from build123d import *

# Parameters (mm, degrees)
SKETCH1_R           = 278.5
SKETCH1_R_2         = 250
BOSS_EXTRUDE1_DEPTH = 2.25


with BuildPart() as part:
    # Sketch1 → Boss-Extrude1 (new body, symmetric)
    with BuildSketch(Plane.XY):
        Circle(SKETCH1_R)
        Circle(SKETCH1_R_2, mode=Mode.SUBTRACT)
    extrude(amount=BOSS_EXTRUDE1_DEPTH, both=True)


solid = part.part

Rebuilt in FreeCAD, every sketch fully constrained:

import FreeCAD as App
import Part
import Sketcher
from FreeCAD import Vector
Q = App.Units.Quantity

doc = App.newDocument("Part")
body = doc.addObject("PartDesign::Body", "Body")

sketch1 = body.newObject("Sketcher::SketchObject", "Sketch")
sketch1.AttachmentSupport = (doc.getObject("XY_Plane"), [""])
sketch1.MapMode = "FlatFace"
sketch1.addGeometry(Part.Circle(Vector(0, 0, 0), Vector(0, 0, 1), 278), False)
sketch1.addGeometry(Part.Circle(Vector(0, 0, 0), Vector(0, 0, 1), 250), False)
sketch1.addConstraint(Sketcher.Constraint("Coincident", 0, 3, -1, 1))
sketch1.addConstraint(Sketcher.Constraint("Coincident", 1, 3, -1, 1))
sketch1.addConstraint(Sketcher.Constraint("Diameter", 0, Q("557 mm")))
sketch1.addConstraint(Sketcher.Constraint("Diameter", 1, Q("500 mm")))
pad1 = body.newObject("PartDesign::Pad", "Pad")
pad1.Profile = sketch1
pad1.Length = 4.5
pad1.Midplane = True

doc.recompute()
